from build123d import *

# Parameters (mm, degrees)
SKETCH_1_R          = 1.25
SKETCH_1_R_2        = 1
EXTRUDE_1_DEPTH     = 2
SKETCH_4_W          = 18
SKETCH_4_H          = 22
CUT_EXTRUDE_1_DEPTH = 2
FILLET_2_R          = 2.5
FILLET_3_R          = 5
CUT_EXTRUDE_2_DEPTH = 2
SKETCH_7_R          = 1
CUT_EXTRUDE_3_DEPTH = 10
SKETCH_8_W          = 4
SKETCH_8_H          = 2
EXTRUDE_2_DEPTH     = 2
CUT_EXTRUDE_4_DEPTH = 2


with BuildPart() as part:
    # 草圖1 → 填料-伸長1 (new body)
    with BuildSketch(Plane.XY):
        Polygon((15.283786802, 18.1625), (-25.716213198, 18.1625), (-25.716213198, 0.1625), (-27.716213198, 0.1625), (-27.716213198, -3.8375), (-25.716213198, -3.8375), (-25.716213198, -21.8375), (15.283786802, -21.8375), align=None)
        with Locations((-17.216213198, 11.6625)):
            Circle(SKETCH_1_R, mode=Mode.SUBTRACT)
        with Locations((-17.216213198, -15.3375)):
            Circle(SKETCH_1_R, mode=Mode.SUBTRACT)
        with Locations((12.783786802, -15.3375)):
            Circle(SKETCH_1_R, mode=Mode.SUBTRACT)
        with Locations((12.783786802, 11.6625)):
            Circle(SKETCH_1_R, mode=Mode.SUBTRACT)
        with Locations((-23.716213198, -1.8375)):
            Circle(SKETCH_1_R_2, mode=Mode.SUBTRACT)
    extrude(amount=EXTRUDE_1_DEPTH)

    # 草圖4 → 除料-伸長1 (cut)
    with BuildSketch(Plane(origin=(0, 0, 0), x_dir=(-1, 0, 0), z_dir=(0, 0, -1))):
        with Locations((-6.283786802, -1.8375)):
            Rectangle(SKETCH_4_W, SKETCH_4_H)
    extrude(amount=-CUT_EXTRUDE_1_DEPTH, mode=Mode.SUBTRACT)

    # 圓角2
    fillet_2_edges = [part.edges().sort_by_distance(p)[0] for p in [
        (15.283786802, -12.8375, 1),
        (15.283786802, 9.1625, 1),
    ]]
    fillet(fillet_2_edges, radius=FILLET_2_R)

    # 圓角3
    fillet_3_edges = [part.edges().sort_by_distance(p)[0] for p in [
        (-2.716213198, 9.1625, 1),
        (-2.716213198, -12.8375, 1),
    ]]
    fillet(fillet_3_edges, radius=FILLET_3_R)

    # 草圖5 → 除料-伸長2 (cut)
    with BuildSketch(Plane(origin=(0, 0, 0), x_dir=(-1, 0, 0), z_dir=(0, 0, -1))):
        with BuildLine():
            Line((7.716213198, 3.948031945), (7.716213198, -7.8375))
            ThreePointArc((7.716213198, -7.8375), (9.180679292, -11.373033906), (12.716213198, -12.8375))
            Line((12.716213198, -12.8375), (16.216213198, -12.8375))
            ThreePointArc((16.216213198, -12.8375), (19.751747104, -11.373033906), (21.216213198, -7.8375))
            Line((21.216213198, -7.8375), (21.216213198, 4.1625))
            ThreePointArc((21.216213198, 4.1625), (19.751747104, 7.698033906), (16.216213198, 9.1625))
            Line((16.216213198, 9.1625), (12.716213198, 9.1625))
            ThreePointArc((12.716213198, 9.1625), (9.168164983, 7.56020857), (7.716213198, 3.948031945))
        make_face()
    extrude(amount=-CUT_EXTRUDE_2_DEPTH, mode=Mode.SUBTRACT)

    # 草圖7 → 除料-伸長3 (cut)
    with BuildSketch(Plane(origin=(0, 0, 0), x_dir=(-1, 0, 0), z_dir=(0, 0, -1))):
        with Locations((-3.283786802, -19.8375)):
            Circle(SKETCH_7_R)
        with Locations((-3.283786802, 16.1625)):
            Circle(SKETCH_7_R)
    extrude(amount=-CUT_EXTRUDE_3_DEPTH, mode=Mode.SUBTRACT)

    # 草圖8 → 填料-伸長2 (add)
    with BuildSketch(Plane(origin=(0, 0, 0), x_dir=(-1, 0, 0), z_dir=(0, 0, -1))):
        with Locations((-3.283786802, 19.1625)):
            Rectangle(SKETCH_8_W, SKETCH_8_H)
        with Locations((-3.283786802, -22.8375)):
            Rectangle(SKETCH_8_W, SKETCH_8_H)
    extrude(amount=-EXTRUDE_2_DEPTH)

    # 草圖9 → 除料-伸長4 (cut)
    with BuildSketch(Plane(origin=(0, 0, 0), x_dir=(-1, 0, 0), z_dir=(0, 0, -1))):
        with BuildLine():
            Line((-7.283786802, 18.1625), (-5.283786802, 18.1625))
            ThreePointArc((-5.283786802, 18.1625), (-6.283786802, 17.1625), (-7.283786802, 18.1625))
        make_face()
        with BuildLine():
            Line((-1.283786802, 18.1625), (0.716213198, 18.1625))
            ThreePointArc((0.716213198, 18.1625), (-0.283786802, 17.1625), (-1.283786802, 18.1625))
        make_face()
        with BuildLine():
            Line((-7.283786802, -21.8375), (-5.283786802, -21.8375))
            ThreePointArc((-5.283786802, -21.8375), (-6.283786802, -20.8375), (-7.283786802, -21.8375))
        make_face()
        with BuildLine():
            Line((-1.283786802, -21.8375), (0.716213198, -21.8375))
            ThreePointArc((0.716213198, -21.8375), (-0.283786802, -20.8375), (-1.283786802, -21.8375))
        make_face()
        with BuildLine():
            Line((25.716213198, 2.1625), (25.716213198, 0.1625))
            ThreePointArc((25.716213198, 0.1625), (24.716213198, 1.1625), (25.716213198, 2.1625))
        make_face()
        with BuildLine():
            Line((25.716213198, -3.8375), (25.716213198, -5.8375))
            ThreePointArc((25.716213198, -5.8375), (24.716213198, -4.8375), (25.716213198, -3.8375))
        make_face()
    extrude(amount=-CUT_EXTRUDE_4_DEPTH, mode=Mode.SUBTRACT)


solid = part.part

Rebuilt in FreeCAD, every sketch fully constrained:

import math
import FreeCAD as App
import Part
import Sketcher

V = App.Vector
Q = App.Units.Quantity


def edges_at(feature, points):
    """Names of the edges that pass closest to the given points."""
    edges = feature.Shape.Edges
    near = lambda p: min(range(len(edges)), key=lambda i: edges[i].distToShape(Part.Vertex(*p))[0])
    return sorted({f"Edge{near(p) + 1}" for p in points})

doc = App.newDocument("Part")
body = doc.addObject("PartDesign::Body", "Body")

# Sketch on XY plane
sketch1 = body.newObject("Sketcher::SketchObject", "Sketch")
sketch1.AttachmentSupport = (doc.getObject("XY_Plane"), [""])
sketch1.MapMode = "FlatFace"
sketch1.addGeometry(Part.LineSegment(V(15.283787, 18.1625, 0), V(-25.716213, 18.1625, 0)), False)
sketch1.addGeometry(Part.LineSegment(V(-25.716213, 18.1625, 0), V(-25.716213, 0.1625, 0)), False)
sketch1.addGeometry(Part.LineSegment(V(-25.716213, 0.1625, 0), V(-27.716213, 0.1625, 0)), False)
sketch1.addGeometry(Part.LineSegment(V(-27.716213, 0.1625, 0), V(-27.716213, -3.8375, 0)), False)
sketch1.addGeometry(Part.LineSegment(V(-27.716213, -3.8375, 0), V(-25.716213, -3.8375, 0)), False)
sketch1.addGeometry(Part.LineSegment(V(-25.716213, -3.8375, 0), V(-25.716213, -21.8375, 0)), False)
sketch1.addGeometry(Part.LineSegment(V(-25.716213, -21.8375, 0), V(15.283787, -21.8375, 0)), False)
sketch1.addGeometry(Part.LineSegment(V(15.283787, -21.8375, 0), V(15.283787, 18.1625, 0)), False)
sketch1.addGeometry(Part.Circle(V(-17.216213, -15.3375, 0), V(0, 0, 1), 1.25), False)
sketch1.addGeometry(Part.Circle(V(12.783787, -15.3375, 0), V(0, 0, 1), 1.25), False)
sketch1.addGeometry(Part.Circle(V(-23.716213, -1.8375, 0), V(0, 0, 1), 1), False)
sketch1.addGeometry(Part.Circle(V(-17.216213, 11.6625, 0), V(0, 0, 1), 1.25), False)
sketch1.addGeometry(Part.Circle(V(12.783787, 11.6625, 0), V(0, 0, 1), 1.25), False)
sketch1.addConstraint(Sketcher.Constraint("Coincident", 0, 2, 1, 1))
sketch1.addConstraint(Sketcher.Constraint("Coincident", 1, 2, 2, 1))
sketch1.addConstraint(Sketcher.Constraint("Coincident", 2, 2, 3, 1))
sketch1.addConstraint(Sketcher.Constraint("Coincident", 3, 2, 4, 1))
sketch1.addConstraint(Sketcher.Constraint("Coincident", 4, 2, 5, 1))
sketch1.addConstraint(Sketcher.Constraint("Coincident", 5, 2, 6, 1))
sketch1.addConstraint(Sketcher.Constraint("Coincident", 6, 2, 7, 1))
sketch1.addConstraint(Sketcher.Constraint("Coincident", 7, 2, 0, 1))
sketch1.addConstraint(Sketcher.Constraint("Horizontal", 0))
sketch1.addConstraint(Sketcher.Constraint("Vertical", 1))
sketch1.addConstraint(Sketcher.Constraint("Horizontal", 2))
sketch1.addConstraint(Sketcher.Constraint("Vertical", 3))
sketch1.addConstraint(Sketcher.Constraint("Horizontal", 4))
sketch1.addConstraint(Sketcher.Constraint("Vertical", 5))
sketch1.addConstraint(Sketcher.Constraint("Horizontal", 6))
sketch1.addConstraint(Sketcher.Constraint("Vertical", 7))
sketch1.addConstraint(Sketcher.Constraint("Equal", 8, 9))
sketch1.addConstraint(Sketcher.Constraint("Equal", 9, 11))
sketch1.addConstraint(Sketcher.Constraint("Equal", 11, 12))
sketch1.addConstraint(Sketcher.Constraint("Horizontal", 8, 3, 9, 3))
sketch1.addConstraint(Sketcher.Constraint("Horizontal", 11, 3, 12, 3))
sketch1.addConstraint(Sketcher.Constraint("Vertical", 8, 3, 11, 3))
sketch1.addConstraint(Sketcher.Constraint("Vertical", 9, 3, 12, 3))
sketch1.addConstraint(Sketcher.Constraint("Vertical", 1, 2, 4, 2))
sketch1.addConstraint(Sketcher.Constraint("Equal", 1, 5))
sketch1.addConstraint(Sketcher.Constraint("Diameter", 10, Q("2 mm")))
sketch1.addConstraint(Sketcher.Constraint("Diameter", 8, Q("2.5 mm")))
sketch1.addConstraint(Sketcher.Constraint("DistanceX", 0, 2, 0, 1, Q("41 mm")))
sketch1.addConstraint(Sketcher.Constraint("DistanceX", 2, 2, 2, 1, Q("2 mm")))
sketch1.addConstraint(Sketcher.Constraint("DistanceY", 1, 2, 1, 1, Q("18 mm")))
sketch1.addConstraint(Sketcher.Constraint("DistanceY", 3, 2, 3, 1, Q("4 mm")))
sketch1.addConstraint(Sketcher.Constraint("DistanceX", 8, 3, 9, 3, Q("30 mm")))
sketch1.addConstraint(Sketcher.Constraint("DistanceY", 8, 3, 11, 3, Q("27 mm")))
sketch1.addConstraint(Sketcher.Constraint("DistanceX", 0, 2, 10, 3, Q("2 mm")))
sketch1.addConstraint(Sketcher.Constraint("DistanceY", 10, 3, 0, 2, Q("20 mm")))
sketch1.addConstraint(Sketcher.Constraint("DistanceX", 10, 3, 8, 3, Q("6.5 mm")))
sketch1.addConstraint(Sketcher.Constraint("DistanceY", 8, 3, 10, 3, Q("13.5 mm")))
sketch1.addConstraint(Sketcher.Constraint("DistanceY", 8, 3, -1, 1, Q("15.3375 mm")))
sketch1.addConstraint(Sketcher.Constraint("DistanceX", 8, 3, -1, 1, Q("17.216213 mm")))
pad1 = body.newObject("PartDesign::Pad", "Pad")
pad1.Profile = sketch1
pad1.Length = 2

# Sketch on XY plane
sketch2 = body.newObject("Sketcher::SketchObject", "Sketch001")
sketch2.AttachmentSupport = (doc.getObject("XY_Plane"), [""])
sketch2.MapMode = "FlatFace"
sketch2.addGeometry(Part.LineSegment(V(15.283787, 9.1625, 0), V(15.283787, -12.8375, 0)), False)
sketch2.addGeometry(Part.LineSegment(V(15.283787, -12.8375, 0), V(-2.716213, -12.8375, 0)), False)
sketch2.addGeometry(Part.LineSegment(V(-2.716213, -12.8375, 0), V(-2.716213, 9.1625, 0)), False)
sketch2.addGeometry(Part.LineSegment(V(-2.716213, 9.1625, 0), V(15.283787, 9.1625, 0)), False)
sketch2.addConstraint(Sketcher.Constraint("Coincident", 0, 2, 1, 1))
sketch2.addConstraint(Sketcher.Constraint("Coincident", 1, 2, 2, 1))
sketch2.addConstraint(Sketcher.Constraint("Coincident", 2, 2, 3, 1))
sketch2.addConstraint(Sketcher.Constraint("Coincident", 3, 2, 0, 1))
sketch2.addConstraint(Sketcher.Constraint("Vertical", 0))
sketch2.addConstraint(Sketcher.Constraint("Horizontal", 1))
sketch2.addConstraint(Sketcher.Constraint("Vertical", 2))
sketch2.addConstraint(Sketcher.Constraint("Horizontal", 3))
sketch2.addConstraint(Sketcher.Constraint("DistanceX", 1, 2, 1, 1, Q("18 mm")))
sketch2.addConstraint(Sketcher.Constraint("DistanceY", 0, 2, 0, 1, Q("22 mm")))
sketch2.addConstraint(Sketcher.Constraint("DistanceY", 0, 2, -1, 1, Q("12.8375 mm")))
sketch2.addConstraint(Sketcher.Constraint("DistanceX", -1, 1, 0, 2, Q("15.283787 mm")))
pocket1 = body.newObject("PartDesign::Pocket", "Pocket")
pocket1.Profile = sketch2
pocket1.Length = 2
pocket1.Reversed = True
doc.recompute()

fillet = body.newObject("PartDesign::Fillet", "Fillet")
fillet.Base = (pocket1, edges_at(pocket1, [(15.284, -12.838, 1), (15.284, 9.162, 1)]))
fillet.Radius = 2.5
doc.recompute()

fillet2 = body.newObject("PartDesign::Fillet", "Fillet001")
fillet2.Base = (fillet, edges_at(fillet, [(-2.716, 9.162, 1), (-2.716, -12.838, 1)]))
fillet2.Radius = 5

# Sketch on XY plane
sketch3 = body.newObject("Sketcher::SketchObject", "Sketch002")
sketch3.AttachmentSupport = (doc.getObject("XY_Plane"), [""])
sketch3.MapMode = "FlatFace"
sketch3.addGeometry(Part.LineSegment(V(-7.716213, 3.948032, 0), V(-7.716213, -7.8375, 0)), False)
sketch3.addGeometry(Part.ArcOfCircle(Part.Circle(V(-12.716213, -7.8375, 0), V(0, 0, 1), 5), math.radians(-90), math.radians(0)), False)
sketch3.addGeometry(Part.LineSegment(V(-12.716213, -12.8375, 0), V(-16.216213, -12.8375, 0)), False)
sketch3.addGeometry(Part.ArcOfCircle(Part.Circle(V(-16.216213, -7.8375, 0), V(0, 0, 1), 5), math.radians(180), math.radians(270)), False)
sketch3.addGeometry(Part.LineSegment(V(-21.216213, -7.8375, 0), V(-21.216213, 4.1625, 0)), False)
sketch3.addGeometry(Part.ArcOfCircle(Part.Circle(V(-16.216213, 4.1625, 0), V(0, 0, 1), 5), math.radians(90), math.radians(180)), False)
sketch3.addGeometry(Part.LineSegment(V(-16.216213, 9.1625, 0), V(-12.716213, 9.1625, 0)), False)
sketch3.addGeometry(Part.ArcOfCircle(Part.Circle(V(-12.935203, 3.948107, 0), V(0, 0, 1), 5.21899), math.radians(-0.000823), math.radians(87.595155)), False)
sketch3.addConstraint(Sketcher.Constraint("Tangent", 0, 2, 1, 2))
sketch3.addConstraint(Sketcher.Constraint("Tangent", 1, 1, 2, 1))
sketch3.addConstraint(Sketcher.Constraint("Tangent", 2, 2, 3, 2))
sketch3.addConstraint(Sketcher.Constraint("Tangent", 3, 1, 4, 1))
sketch3.addConstraint(Sketcher.Constraint("Tangent", 4, 2, 5, 2))
sketch3.addConstraint(Sketcher.Constraint("Tangent", 5, 1, 6, 1))
sketch3.addConstraint(Sketcher.Constraint("Coincident", 6, 2, 7, 2))
sketch3.addConstraint(Sketcher.Constraint("Coincident", 7, 1, 0, 1))
sketch3.addConstraint(Sketcher.Constraint("Vertical", 0))
sketch3.addConstraint(Sketcher.Constraint("Horizontal", 2))
sketch3.addConstraint(Sketcher.Constraint("Vertical", 4))
sketch3.addConstraint(Sketcher.Constraint("Horizontal", 6))
sketch3.addConstraint(Sketcher.Constraint("Equal", 1, 3))
sketch3.addConstraint(Sketcher.Constraint("Equal", 3, 5))
sketch3.addConstraint(Sketcher.Constraint("Vertical", 1, 1, 6, 2))
sketch3.addConstraint(Sketcher.Constraint("Radius", 1, Q("5 mm")))
sketch3.addConstraint(Sketcher.Constraint("DistanceY", 4, 1, 4, 2, Q("12 mm")))
sketch3.addConstraint(Sketcher.Constraint("DistanceX", 2, 2, 2, 1, Q("3.5 mm")))
sketch3.addConstraint(Sketcher.Constraint("Radius", 7, Q("5.21899 mm")))
sketch3.addConstraint(Sketcher.Constraint("DistanceY", 0, 2, 0, 1, Q("11.785532 mm")))
sketch3.addConstraint(Sketcher.Constraint("DistanceY", 1, 3, -1, 1, Q("7.8375 mm")))
sketch3.addConstraint(Sketcher.Constraint("DistanceX", 1, 3, -1, 1, Q("12.716213 mm")))
pocket2 = body.newObject("PartDesign::Pocket", "Pocket001")
pocket2.Profile = sketch3
pocket2.Length = 2
pocket2.Reversed = True

# Sketch on XY plane
sketch4 = body.newObject("Sketcher::SketchObject", "Sketch003")
sketch4.AttachmentSupport = (doc.getObject("XY_Plane"), [""])
sketch4.MapMode = "FlatFace"
sketch4.addGeometry(Part.Circle(V(3.283787, -19.8375, 0), V(0, 0, 1), 1), False)
sketch4.addGeometry(Part.Circle(V(3.283787, 16.1625, 0), V(0, 0, 1), 1), False)
sketch4.addConstraint(Sketcher.Constraint("Equal", 0, 1))
sketch4.addConstraint(Sketcher.Constraint("Vertical", 0, 3, 1, 3))
sketch4.addConstraint(Sketcher.Constraint("Diameter", 0, Q("2 mm")))
sketch4.addConstraint(Sketcher.Constraint("DistanceY", 0, 3, 1, 3, Q("36 mm")))
sketch4.addConstraint(Sketcher.Constraint("DistanceY", 0, 3, -1, 1, Q("19.8375 mm")))
sketch4.addConstraint(Sketcher.Constraint("DistanceX", -1, 1, 0, 3, Q("3.283787 mm")))
pocket3 = body.newObject("PartDesign::Pocket", "Pocket002")
pocket3.Profile = sketch4
pocket3.Length = 10
pocket3.Reversed = True

# Sketch on XY plane
sketch5 = body.newObject("Sketcher::SketchObject", "Sketch004")
sketch5.AttachmentSupport = (doc.getObject("XY_Plane"), [""])
sketch5.MapMode = "FlatFace"
sketch5.addGeometry(Part.LineSegment(V(5.283787, 20.1625, 0), V(5.283787, 18.1625, 0)), False)
sketch5.addGeometry(Part.LineSegment(V(5.283787, 18.1625, 0), V(1.283787, 18.1625, 0)), False)
sketch5.addGeometry(Part.LineSegment(V(1.283787, 18.1625, 0), V(1.283787, 20.1625, 0)), False)
sketch5.addGeometry(Part.LineSegment(V(1.283787, 20.1625, 0), V(5.283787, 20.1625, 0)), False)
sketch5.addGeometry(Part.LineSegment(V(5.283787, -21.8375, 0), V(5.283787, -23.8375, 0)), False)
sketch5.addGeometry(Part.LineSegment(V(5.283787, -23.8375, 0), V(1.283787, -23.8375, 0)), False)
sketch5.addGeometry(Part.LineSegment(V(1.283787, -23.8375, 0), V(1.283787, -21.8375, 0)), False)
sketch5.addGeometry(Part.LineSegment(V(1.283787, -21.8375, 0), V(5.283787, -21.8375, 0)), False)
sketch5.addConstraint(Sketcher.Constraint("Coincident", 0, 2, 1, 1))
sketch5.addConstraint(Sketcher.Constraint("Coincident", 1, 2, 2, 1))
sketch5.addConstraint(Sketcher.Constraint("Coincident", 2, 2, 3, 1))
sketch5.addConstraint(Sketcher.Constraint("Coincident", 3, 2, 0, 1))
sketch5.addConstraint(Sketcher.Constraint("Coincident", 4, 2, 5, 1))
sketch5.addConstraint(Sketcher.Constraint("Coincident", 5, 2, 6, 1))
sketch5.addConstraint(Sketcher.Constraint("Coincident", 6, 2, 7, 1))
sketch5.addConstraint(Sketcher.Constraint("Coincident", 7, 2, 4, 1))
sketch5.addConstraint(Sketcher.Constraint("Vertical", 0))
sketch5.addConstraint(Sketcher.Constraint("Horizontal", 1))
sketch5.addConstraint(Sketcher.Constraint("Vertical", 2))
sketch5.addConstraint(Sketcher.Constraint("Horizontal", 3))
sketch5.addConstraint(Sketcher.Constraint("Vertical", 4))
sketch5.addConstraint(Sketcher.Constraint("Horizontal", 5))
sketch5.addConstraint(Sketcher.Constraint("Vertical", 6))
sketch5.addConstraint(Sketcher.Constraint("Horizontal", 7))
sketch5.addConstraint(Sketcher.Constraint("Vertical", 3, 2, 4, 2))
sketch5.addConstraint(Sketcher.Constraint("Vertical", 2, 2, 5, 2))
sketch5.addConstraint(Sketcher.Constraint("Equal", 2, 4))
sketch5.addConstraint(Sketcher.Constraint("DistanceX", 1, 2, 1, 1, Q("4 mm")))
sketch5.addConstraint(Sketcher.Constraint("DistanceY", 0, 2, 0, 1, Q("2 mm")))
sketch5.addConstraint(Sketcher.Constraint("DistanceY", 4, 2, 0, 2, Q("42 mm")))
sketch5.addConstraint(Sketcher.Constraint("DistanceY", -1, 1, 0, 2, Q("18.1625 mm")))
sketch5.addConstraint(Sketcher.Constraint("DistanceX", -1, 1, 0, 2, Q("5.283787 mm")))
pad2 = body.newObject("PartDesign::Pad", "Pad001")
pad2.Profile = sketch5
pad2.Length = 2

# Sketch on XY plane
sketch6 = body.newObject("Sketcher::SketchObject", "Sketch005")
sketch6.AttachmentSupport = (doc.getObject("XY_Plane"), [""])
sketch6.MapMode = "FlatFace"
sketch6.addGeometry(Part.LineSegment(V(5.283787, 18.1625, 0), V(7.283787, 18.1625, 0)), False)
sketch6.addGeometry(Part.ArcOfCircle(Part.Circle(V(6.283787, 18.1625, 0), V(0, 0, 1), 1), math.radians(180), math.radians(360)), False)
sketch6.addGeometry(Part.LineSegment(V(-0.716213, 18.1625, 0), V(1.283787, 18.1625, 0)), False)
sketch6.addGeometry(Part.ArcOfCircle(Part.Circle(V(0.283787, 18.1625, 0), V(0, 0, 1), 1), math.radians(180), math.radians(360)), False)
sketch6.addGeometry(Part.LineSegment(V(7.283787, -21.8375, 0), V(5.283787, -21.8375, 0)), False)
sketch6.addGeometry(Part.ArcOfCircle(Part.Circle(V(6.283787, -21.8375, 0), V(0, 0, 1), 1), math.radians(0), math.radians(180)), False)
sketch6.addGeometry(Part.LineSegment(V(1.283787, -21.8375, 0), V(-0.716213, -21.8375, 0)), False)
sketch6.addGeometry(Part.ArcOfCircle(Part.Circle(V(0.283787, -21.8375, 0), V(0, 0, 1), 1), math.radians(0), math.radians(180)), False)
sketch6.addGeometry(Part.LineSegment(V(-25.716213, 0.1625, 0), V(-25.716213, 2.1625, 0)), False)
sketch6.addGeometry(Part.ArcOfCircle(Part.Circle(V(-25.716213, 1.1625, 0), V(0, 0, 1), 1), math.radians(-90), math.radians(90)), False)
sketch6.addGeometry(Part.LineSegment(V(-25.716213, -5.8375, 0), V(-25.716213, -3.8375, 0)), False)
sketch6.addGeometry(Part.ArcOfCircle(Part.Circle(V(-25.716213, -4.8375, 0), V(0, 0, 1), 1), math.radians(-90), math.radians(90)), False)
sketch6.addConstraint(Sketcher.Constraint("Coincident", 0, 1, 1, 1))
sketch6.addConstraint(Sketcher.Constraint("Coincident", 1, 2, 0, 2))
sketch6.addConstraint(Sketcher.Constraint("Coincident", 2, 1, 3, 1))
sketch6.addConstraint(Sketcher.Constraint("Coincident", 3, 2, 2, 2))
sketch6.addConstraint(Sketcher.Constraint("Coincident", 4, 1, 5, 1))
sketch6.addConstraint(Sketcher.Constraint("Coincident", 5, 2, 4, 2))
sketch6.addConstraint(Sketcher.Constraint("Coincident", 6, 1, 7, 1))
sketch6.addConstraint(Sketcher.Constraint("Coincident", 7, 2, 6, 2))
sketch6.addConstraint(Sketcher.Constraint("Coincident", 8, 1, 9, 1))
sketch6.addConstraint(Sketcher.Constraint("Coincident", 9, 2, 8, 2))
sketch6.addConstraint(Sketcher.Constraint("Coincident", 10, 1, 11, 1))
sketch6.addConstraint(Sketcher.Constraint("Coincident", 11, 2, 10, 2))
sketch6.addConstraint(Sketcher.Constraint("Horizontal", 0))
sketch6.addConstraint(Sketcher.Constraint("Horizontal", 2))
sketch6.addConstraint(Sketcher.Constraint("Horizontal", 4))
sketch6.addConstraint(Sketcher.Constraint("Horizontal", 6))
sketch6.addConstraint(Sketcher.Constraint("Vertical", 8))
sketch6.addConstraint(Sketcher.Constraint("Vertical", 10))
sketch6.addConstraint(Sketcher.Constraint("Equal", 1, 3))
sketch6.addConstraint(Sketcher.Constraint("Equal", 3, 5))
sketch6.addConstraint(Sketcher.Constraint("Equal", 5, 7))
sketch6.addConstraint(Sketcher.Constraint("Equal", 7, 9))
sketch6.addConstraint(Sketcher.Constraint("Equal", 9, 11))
sketch6.addConstraint(Sketcher.Constraint("Horizontal", 1, 3, 3, 3))
sketch6.addConstraint(Sketcher.Constraint("Horizontal", 5, 3, 7, 3))
sketch6.addConstraint(Sketcher.Constraint("Horizontal", 3, 3, 0, 1))
sketch6.addConstraint(Sketcher.Constraint("Horizontal", 1, 2, 2, 1))
sketch6.addConstraint(Sketcher.Constraint("Horizontal", 7, 3, 4, 1))
sketch6.addConstraint(Sketcher.Constraint("Horizontal", 5, 2, 6, 1))
sketch6.addConstraint(Sketcher.Constraint("Vertical", 1, 3, 5, 3))
sketch6.addConstraint(Sketcher.Constraint("Vertical", 3, 3, 7, 3))
sketch6.addConstraint(Sketcher.Constraint("Vertical", 9, 3, 11, 3))
sketch6.addConstraint(Sketcher.Constraint("Vertical", 11, 3, 8, 1))
sketch6.addConstraint(Sketcher.Constraint("Vertical", 9, 2, 10, 1))
sketch6.addConstraint(Sketcher.Constraint("Radius", 1, Q("1 mm")))
sketch6.addConstraint(Sketcher.Constraint("DistanceX", 3, 3, 1, 3, Q("6 mm")))
sketch6.addConstraint(Sketcher.Constraint("DistanceY", 5, 3, 1, 3, Q("40 mm")))
sketch6.addConstraint(Sketcher.Constraint("DistanceX", 9, 3, 3, 3, Q("26 mm")))
sketch6.addConstraint(Sketcher.Constraint("DistanceY", 9, 3, 3, 3, Q("17 mm")))
sketch6.addConstraint(Sketcher.Constraint("DistanceY", 11, 3, 9, 3, Q("6 mm")))
sketch6.addConstraint(Sketcher.Constraint("DistanceY", -1, 1, 1, 3, Q("18.1625 mm")))
sketch6.addConstraint(Sketcher.Constraint("DistanceX", -1, 1, 1, 3, Q("6.283787 mm")))
pocket4 = body.newObject("PartDesign::Pocket", "Pocket003")
pocket4.Profile = sketch6
pocket4.Length = 2
pocket4.Reversed = True

doc.recompute()
